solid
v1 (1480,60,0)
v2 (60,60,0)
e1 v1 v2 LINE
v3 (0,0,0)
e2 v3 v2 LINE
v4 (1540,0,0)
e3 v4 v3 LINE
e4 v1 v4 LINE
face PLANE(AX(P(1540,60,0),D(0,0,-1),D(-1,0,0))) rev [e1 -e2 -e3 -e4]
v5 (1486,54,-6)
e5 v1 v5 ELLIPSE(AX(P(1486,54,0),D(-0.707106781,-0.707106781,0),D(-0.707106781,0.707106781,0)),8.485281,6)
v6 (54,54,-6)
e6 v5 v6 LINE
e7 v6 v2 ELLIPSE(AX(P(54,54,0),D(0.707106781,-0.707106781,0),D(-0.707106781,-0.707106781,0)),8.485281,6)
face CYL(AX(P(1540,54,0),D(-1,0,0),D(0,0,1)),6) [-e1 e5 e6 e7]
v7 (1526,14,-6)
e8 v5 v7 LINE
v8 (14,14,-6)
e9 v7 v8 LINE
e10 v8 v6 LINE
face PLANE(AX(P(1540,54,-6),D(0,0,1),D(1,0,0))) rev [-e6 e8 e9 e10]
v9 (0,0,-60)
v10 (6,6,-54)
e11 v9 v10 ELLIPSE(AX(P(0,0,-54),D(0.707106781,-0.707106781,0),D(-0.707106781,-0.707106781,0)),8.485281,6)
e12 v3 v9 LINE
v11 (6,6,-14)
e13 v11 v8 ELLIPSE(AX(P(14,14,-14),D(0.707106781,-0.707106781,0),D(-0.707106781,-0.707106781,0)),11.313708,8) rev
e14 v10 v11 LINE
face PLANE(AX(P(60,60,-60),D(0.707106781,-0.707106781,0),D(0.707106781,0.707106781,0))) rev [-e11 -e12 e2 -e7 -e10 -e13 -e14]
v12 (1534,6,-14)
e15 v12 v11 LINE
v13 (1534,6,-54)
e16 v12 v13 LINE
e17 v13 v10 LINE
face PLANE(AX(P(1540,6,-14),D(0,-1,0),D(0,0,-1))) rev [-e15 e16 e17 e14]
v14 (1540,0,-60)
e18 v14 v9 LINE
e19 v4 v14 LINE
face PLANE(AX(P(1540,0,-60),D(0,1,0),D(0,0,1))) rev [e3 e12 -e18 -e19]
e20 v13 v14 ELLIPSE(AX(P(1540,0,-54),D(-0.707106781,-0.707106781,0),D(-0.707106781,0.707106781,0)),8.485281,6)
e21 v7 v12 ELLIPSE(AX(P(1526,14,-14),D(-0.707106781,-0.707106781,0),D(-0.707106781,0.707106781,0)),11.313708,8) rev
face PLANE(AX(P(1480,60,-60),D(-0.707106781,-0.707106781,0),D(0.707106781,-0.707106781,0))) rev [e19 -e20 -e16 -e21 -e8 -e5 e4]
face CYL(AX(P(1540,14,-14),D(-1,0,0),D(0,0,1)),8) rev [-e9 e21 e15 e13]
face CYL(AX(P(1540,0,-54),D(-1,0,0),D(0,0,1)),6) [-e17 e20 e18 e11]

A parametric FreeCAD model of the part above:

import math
import FreeCAD as App
import Part
import Sketcher
Q = App.Units.Quantity


def add_polygon(sketch, points):
    """Adds a closed chain of lines whose ends are joined by coincident constraints."""
    first, n = sketch.GeometryCount, len(points)
    for a, b in zip(points, points[1:] + points[:1]):
        sketch.addGeometry(Part.LineSegment(App.Vector(*a, 0), App.Vector(*b, 0)), False)
    for i in range(n):
        sketch.addConstraint(Sketcher.Constraint("Coincident", first + i, 2, first + (i + 1) % n, 1))

doc = App.newDocument("Part")
params = doc.addObject("Spreadsheet::Sheet", "Params")
for row, (alias, value) in enumerate([
    ("sketch1_radius", "6 mm"),
    ("sketch1_radius2", "8 mm"),
    ("sketch1_width", "60 mm"),
    ("pad1_length", "1540 mm"),
    ("sketch2_width", "60 mm"),
], start=1):
    params.set(f"A{row}", alias)
    params.set(f"B{row}", "=" + value)
    params.setAlias(f"B{row}", alias)

body = doc.addObject("PartDesign::Body", "Body")

# Sketch on YZ plane
sketch1 = body.newObject("Sketcher::SketchObject", "Sketch")
sketch1.AttachmentSupport = (doc.getObject("YZ_Plane"), [""])
sketch1.MapMode = "FlatFace"
sketch1.addGeometry([
    Part.LineSegment(App.Vector(60, 0, 0), App.Vector(0, 0, 0)),  # 0
    Part.LineSegment(App.Vector(0, 0, 0), App.Vector(0, -60, 0)),  # 1
    Part.ArcOfCircle(Part.Circle(App.Vector(0, -54, 0), App.Vector(0, 0, 1), 6), math.radians(-90), math.radians(0)),  # 2
    Part.LineSegment(App.Vector(6, -54, 0), App.Vector(6, -14, 0)),  # 3
    Part.ArcOfCircle(Part.Circle(App.Vector(14, -14, 0), App.Vector(0, 0, 1), 8), math.radians(90), math.radians(180)),  # 4
    Part.LineSegment(App.Vector(14, -6, 0), App.Vector(54, -6, 0)),  # 5
    Part.ArcOfCircle(Part.Circle(App.Vector(54, 0, 0), App.Vector(0, 0, 1), 6), math.radians(-90), math.radians(0)),  # 6
], False)
sketch1.addConstraint([
    Sketcher.Constraint("Coincident", 0, 2, 1, 1),
    Sketcher.Constraint("Coincident", 1, 2, 2, 1),
    Sketcher.Constraint("Tangent", 2, 2, 3, 1),
    Sketcher.Constraint("Tangent", 3, 2, 4, 2),
    Sketcher.Constraint("Tangent", 4, 1, 5, 1),
    Sketcher.Constraint("Tangent", 5, 2, 6, 1),
    Sketcher.Constraint("Coincident", 6, 2, 0, 1),
    Sketcher.Constraint("Horizontal", 0),
    Sketcher.Constraint("Vertical", 1),
    Sketcher.Constraint("Vertical", 3),
    Sketcher.Constraint("Horizontal", 5),
    Sketcher.Constraint("Coincident", 0, 2, -1, 1),
    Sketcher.Constraint("Equal", 2, 6),
    Sketcher.Constraint("PointOnObject", 2, 3, -2),
    Sketcher.Constraint("PointOnObject", 6, 3, -1),
    Sketcher.Constraint("Equal", 0, 1),
    Sketcher.Constraint("Radius", 2, Q("6 mm")),
    Sketcher.Constraint("Radius", 4, Q("8 mm")),
    Sketcher.Constraint("DistanceX", 0, 2, 0, 1, Q("60 mm")),
])
sketch1.setExpression("Constraints[16]", "Params.sketch1_radius")
sketch1.setExpression("Constraints[17]", "Params.sketch1_radius2")
sketch1.setExpression("Constraints[18]", "Params.sketch1_width")
pad1 = body.newObject("PartDesign::Pad", "Pad")
pad1.Profile = sketch1
pad1.setExpression("Length", "Params.pad1_length")

# Sketch on XY plane
sketch2 = body.newObject("Sketcher::SketchObject", "Sketch001")
sketch2.AttachmentSupport = (doc.getObject("XY_Plane"), [""])
sketch2.MapMode = "FlatFace"
add_polygon(sketch2, [(1540, 0), (1540, 60), (1480, 60)])  # lines 0-2
add_polygon(sketch2, [(0, 60), (0, 0), (60, 60)])  # lines 3-5
sketch2.addConstraint([
    Sketcher.Constraint("Vertical", 0),
    Sketcher.Constraint("Horizontal", 1),
    Sketcher.Constraint("Vertical", 3),
    Sketcher.Constraint("Horizontal", 5),
    Sketcher.Constraint("Coincident", 3, 2, -1, 1),
    Sketcher.Constraint("PointOnObject", 2, 2, -1),
    Sketcher.Constraint("Perpendicular", 2, 4),
    Sketcher.Constraint("Horizontal", 1, 2, 4, 2),
    Sketcher.Constraint("Equal", 1, 5),
    Sketcher.Constraint("DistanceX", 1, 2, 1, 1, Q("60 mm")),
    Sketcher.Constraint("DistanceX", -1, 1, 0, 2, Q("1540 mm")),
])
sketch2.setExpression("Constraints[15]", "Params.sketch2_width")
pocket1 = body.newObject("PartDesign::Pocket", "Pocket")
pocket1.Profile = sketch2
pocket1.Type = "ThroughAll"

doc.recompute()
